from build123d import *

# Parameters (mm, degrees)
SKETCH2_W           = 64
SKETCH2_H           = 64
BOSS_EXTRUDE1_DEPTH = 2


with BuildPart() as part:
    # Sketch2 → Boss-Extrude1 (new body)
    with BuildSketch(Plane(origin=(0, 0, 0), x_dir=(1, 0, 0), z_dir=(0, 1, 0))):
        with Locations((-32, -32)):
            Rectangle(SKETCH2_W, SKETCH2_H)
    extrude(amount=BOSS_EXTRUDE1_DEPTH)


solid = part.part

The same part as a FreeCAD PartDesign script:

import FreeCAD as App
import Part
import Sketcher
Q = App.Units.Quantity


def add_polygon(sketch, points):
    """Adds a closed chain of lines whose ends are joined by coincident constraints."""
    first, n = sketch.GeometryCount, len(points)
    for a, b in zip(points, points[1:] + points[:1]):
        sketch.addGeometry(Part.LineSegment(App.Vector(*a, 0), App.Vector(*b, 0)), False)
    for i in range(n):
        sketch.addConstraint(Sketcher.Constraint("Coincident", first + i, 2, first + (i + 1) % n, 1))

doc = App.newDocument("Part")
params = doc.addObject("Spreadsheet::Sheet", "Params")
for row, (alias, value) in enumerate([
    ("sketch1_width", "64 mm"),
    ("pad1_length", "2 mm"),
], start=1):
    params.set(f"A{row}", alias)
    params.set(f"B{row}", "=" + value)
    params.setAlias(f"B{row}", alias)

body = doc.addObject("PartDesign::Body", "Body")

sketch1 = body.newObject("Sketcher::SketchObject", "Sketch")
sketch1.AttachmentSupport = (doc.getObject("XZ_Plane"), [""])
sketch1.MapMode = "FlatFace"
add_polygon(sketch1, [(-64, 0), (-64, 64), (0, 64), (0, 0)])
sketch1.addConstraint(Sketcher.Constraint("Vertical", 0))
sketch1.addConstraint(Sketcher.Constraint("Horizontal", 1))
sketch1.addConstraint(Sketcher.Constraint("Vertical", 2))
sketch1.addConstraint(Sketcher.Constraint("Horizontal", 3))
sketch1.addConstraint(Sketcher.Constraint("Coincident", 2, 2, -1, 1))
sketch1.addConstraint(Sketcher.Constraint("Equal", 3, 0))
sketch1.addConstraint(Sketcher.Constraint("DistanceX", 1, 1, 1, 2, Q("64 mm")))
sketch1.setExpression("Constraints[10]", "Params.sketch1_width")
pad1 = body.newObject("PartDesign::Pad", "Pad")
pad1.Profile = sketch1
pad1.setExpression("Length", "Params.pad1_length")
pad1.Reversed = True

doc.recompute()
